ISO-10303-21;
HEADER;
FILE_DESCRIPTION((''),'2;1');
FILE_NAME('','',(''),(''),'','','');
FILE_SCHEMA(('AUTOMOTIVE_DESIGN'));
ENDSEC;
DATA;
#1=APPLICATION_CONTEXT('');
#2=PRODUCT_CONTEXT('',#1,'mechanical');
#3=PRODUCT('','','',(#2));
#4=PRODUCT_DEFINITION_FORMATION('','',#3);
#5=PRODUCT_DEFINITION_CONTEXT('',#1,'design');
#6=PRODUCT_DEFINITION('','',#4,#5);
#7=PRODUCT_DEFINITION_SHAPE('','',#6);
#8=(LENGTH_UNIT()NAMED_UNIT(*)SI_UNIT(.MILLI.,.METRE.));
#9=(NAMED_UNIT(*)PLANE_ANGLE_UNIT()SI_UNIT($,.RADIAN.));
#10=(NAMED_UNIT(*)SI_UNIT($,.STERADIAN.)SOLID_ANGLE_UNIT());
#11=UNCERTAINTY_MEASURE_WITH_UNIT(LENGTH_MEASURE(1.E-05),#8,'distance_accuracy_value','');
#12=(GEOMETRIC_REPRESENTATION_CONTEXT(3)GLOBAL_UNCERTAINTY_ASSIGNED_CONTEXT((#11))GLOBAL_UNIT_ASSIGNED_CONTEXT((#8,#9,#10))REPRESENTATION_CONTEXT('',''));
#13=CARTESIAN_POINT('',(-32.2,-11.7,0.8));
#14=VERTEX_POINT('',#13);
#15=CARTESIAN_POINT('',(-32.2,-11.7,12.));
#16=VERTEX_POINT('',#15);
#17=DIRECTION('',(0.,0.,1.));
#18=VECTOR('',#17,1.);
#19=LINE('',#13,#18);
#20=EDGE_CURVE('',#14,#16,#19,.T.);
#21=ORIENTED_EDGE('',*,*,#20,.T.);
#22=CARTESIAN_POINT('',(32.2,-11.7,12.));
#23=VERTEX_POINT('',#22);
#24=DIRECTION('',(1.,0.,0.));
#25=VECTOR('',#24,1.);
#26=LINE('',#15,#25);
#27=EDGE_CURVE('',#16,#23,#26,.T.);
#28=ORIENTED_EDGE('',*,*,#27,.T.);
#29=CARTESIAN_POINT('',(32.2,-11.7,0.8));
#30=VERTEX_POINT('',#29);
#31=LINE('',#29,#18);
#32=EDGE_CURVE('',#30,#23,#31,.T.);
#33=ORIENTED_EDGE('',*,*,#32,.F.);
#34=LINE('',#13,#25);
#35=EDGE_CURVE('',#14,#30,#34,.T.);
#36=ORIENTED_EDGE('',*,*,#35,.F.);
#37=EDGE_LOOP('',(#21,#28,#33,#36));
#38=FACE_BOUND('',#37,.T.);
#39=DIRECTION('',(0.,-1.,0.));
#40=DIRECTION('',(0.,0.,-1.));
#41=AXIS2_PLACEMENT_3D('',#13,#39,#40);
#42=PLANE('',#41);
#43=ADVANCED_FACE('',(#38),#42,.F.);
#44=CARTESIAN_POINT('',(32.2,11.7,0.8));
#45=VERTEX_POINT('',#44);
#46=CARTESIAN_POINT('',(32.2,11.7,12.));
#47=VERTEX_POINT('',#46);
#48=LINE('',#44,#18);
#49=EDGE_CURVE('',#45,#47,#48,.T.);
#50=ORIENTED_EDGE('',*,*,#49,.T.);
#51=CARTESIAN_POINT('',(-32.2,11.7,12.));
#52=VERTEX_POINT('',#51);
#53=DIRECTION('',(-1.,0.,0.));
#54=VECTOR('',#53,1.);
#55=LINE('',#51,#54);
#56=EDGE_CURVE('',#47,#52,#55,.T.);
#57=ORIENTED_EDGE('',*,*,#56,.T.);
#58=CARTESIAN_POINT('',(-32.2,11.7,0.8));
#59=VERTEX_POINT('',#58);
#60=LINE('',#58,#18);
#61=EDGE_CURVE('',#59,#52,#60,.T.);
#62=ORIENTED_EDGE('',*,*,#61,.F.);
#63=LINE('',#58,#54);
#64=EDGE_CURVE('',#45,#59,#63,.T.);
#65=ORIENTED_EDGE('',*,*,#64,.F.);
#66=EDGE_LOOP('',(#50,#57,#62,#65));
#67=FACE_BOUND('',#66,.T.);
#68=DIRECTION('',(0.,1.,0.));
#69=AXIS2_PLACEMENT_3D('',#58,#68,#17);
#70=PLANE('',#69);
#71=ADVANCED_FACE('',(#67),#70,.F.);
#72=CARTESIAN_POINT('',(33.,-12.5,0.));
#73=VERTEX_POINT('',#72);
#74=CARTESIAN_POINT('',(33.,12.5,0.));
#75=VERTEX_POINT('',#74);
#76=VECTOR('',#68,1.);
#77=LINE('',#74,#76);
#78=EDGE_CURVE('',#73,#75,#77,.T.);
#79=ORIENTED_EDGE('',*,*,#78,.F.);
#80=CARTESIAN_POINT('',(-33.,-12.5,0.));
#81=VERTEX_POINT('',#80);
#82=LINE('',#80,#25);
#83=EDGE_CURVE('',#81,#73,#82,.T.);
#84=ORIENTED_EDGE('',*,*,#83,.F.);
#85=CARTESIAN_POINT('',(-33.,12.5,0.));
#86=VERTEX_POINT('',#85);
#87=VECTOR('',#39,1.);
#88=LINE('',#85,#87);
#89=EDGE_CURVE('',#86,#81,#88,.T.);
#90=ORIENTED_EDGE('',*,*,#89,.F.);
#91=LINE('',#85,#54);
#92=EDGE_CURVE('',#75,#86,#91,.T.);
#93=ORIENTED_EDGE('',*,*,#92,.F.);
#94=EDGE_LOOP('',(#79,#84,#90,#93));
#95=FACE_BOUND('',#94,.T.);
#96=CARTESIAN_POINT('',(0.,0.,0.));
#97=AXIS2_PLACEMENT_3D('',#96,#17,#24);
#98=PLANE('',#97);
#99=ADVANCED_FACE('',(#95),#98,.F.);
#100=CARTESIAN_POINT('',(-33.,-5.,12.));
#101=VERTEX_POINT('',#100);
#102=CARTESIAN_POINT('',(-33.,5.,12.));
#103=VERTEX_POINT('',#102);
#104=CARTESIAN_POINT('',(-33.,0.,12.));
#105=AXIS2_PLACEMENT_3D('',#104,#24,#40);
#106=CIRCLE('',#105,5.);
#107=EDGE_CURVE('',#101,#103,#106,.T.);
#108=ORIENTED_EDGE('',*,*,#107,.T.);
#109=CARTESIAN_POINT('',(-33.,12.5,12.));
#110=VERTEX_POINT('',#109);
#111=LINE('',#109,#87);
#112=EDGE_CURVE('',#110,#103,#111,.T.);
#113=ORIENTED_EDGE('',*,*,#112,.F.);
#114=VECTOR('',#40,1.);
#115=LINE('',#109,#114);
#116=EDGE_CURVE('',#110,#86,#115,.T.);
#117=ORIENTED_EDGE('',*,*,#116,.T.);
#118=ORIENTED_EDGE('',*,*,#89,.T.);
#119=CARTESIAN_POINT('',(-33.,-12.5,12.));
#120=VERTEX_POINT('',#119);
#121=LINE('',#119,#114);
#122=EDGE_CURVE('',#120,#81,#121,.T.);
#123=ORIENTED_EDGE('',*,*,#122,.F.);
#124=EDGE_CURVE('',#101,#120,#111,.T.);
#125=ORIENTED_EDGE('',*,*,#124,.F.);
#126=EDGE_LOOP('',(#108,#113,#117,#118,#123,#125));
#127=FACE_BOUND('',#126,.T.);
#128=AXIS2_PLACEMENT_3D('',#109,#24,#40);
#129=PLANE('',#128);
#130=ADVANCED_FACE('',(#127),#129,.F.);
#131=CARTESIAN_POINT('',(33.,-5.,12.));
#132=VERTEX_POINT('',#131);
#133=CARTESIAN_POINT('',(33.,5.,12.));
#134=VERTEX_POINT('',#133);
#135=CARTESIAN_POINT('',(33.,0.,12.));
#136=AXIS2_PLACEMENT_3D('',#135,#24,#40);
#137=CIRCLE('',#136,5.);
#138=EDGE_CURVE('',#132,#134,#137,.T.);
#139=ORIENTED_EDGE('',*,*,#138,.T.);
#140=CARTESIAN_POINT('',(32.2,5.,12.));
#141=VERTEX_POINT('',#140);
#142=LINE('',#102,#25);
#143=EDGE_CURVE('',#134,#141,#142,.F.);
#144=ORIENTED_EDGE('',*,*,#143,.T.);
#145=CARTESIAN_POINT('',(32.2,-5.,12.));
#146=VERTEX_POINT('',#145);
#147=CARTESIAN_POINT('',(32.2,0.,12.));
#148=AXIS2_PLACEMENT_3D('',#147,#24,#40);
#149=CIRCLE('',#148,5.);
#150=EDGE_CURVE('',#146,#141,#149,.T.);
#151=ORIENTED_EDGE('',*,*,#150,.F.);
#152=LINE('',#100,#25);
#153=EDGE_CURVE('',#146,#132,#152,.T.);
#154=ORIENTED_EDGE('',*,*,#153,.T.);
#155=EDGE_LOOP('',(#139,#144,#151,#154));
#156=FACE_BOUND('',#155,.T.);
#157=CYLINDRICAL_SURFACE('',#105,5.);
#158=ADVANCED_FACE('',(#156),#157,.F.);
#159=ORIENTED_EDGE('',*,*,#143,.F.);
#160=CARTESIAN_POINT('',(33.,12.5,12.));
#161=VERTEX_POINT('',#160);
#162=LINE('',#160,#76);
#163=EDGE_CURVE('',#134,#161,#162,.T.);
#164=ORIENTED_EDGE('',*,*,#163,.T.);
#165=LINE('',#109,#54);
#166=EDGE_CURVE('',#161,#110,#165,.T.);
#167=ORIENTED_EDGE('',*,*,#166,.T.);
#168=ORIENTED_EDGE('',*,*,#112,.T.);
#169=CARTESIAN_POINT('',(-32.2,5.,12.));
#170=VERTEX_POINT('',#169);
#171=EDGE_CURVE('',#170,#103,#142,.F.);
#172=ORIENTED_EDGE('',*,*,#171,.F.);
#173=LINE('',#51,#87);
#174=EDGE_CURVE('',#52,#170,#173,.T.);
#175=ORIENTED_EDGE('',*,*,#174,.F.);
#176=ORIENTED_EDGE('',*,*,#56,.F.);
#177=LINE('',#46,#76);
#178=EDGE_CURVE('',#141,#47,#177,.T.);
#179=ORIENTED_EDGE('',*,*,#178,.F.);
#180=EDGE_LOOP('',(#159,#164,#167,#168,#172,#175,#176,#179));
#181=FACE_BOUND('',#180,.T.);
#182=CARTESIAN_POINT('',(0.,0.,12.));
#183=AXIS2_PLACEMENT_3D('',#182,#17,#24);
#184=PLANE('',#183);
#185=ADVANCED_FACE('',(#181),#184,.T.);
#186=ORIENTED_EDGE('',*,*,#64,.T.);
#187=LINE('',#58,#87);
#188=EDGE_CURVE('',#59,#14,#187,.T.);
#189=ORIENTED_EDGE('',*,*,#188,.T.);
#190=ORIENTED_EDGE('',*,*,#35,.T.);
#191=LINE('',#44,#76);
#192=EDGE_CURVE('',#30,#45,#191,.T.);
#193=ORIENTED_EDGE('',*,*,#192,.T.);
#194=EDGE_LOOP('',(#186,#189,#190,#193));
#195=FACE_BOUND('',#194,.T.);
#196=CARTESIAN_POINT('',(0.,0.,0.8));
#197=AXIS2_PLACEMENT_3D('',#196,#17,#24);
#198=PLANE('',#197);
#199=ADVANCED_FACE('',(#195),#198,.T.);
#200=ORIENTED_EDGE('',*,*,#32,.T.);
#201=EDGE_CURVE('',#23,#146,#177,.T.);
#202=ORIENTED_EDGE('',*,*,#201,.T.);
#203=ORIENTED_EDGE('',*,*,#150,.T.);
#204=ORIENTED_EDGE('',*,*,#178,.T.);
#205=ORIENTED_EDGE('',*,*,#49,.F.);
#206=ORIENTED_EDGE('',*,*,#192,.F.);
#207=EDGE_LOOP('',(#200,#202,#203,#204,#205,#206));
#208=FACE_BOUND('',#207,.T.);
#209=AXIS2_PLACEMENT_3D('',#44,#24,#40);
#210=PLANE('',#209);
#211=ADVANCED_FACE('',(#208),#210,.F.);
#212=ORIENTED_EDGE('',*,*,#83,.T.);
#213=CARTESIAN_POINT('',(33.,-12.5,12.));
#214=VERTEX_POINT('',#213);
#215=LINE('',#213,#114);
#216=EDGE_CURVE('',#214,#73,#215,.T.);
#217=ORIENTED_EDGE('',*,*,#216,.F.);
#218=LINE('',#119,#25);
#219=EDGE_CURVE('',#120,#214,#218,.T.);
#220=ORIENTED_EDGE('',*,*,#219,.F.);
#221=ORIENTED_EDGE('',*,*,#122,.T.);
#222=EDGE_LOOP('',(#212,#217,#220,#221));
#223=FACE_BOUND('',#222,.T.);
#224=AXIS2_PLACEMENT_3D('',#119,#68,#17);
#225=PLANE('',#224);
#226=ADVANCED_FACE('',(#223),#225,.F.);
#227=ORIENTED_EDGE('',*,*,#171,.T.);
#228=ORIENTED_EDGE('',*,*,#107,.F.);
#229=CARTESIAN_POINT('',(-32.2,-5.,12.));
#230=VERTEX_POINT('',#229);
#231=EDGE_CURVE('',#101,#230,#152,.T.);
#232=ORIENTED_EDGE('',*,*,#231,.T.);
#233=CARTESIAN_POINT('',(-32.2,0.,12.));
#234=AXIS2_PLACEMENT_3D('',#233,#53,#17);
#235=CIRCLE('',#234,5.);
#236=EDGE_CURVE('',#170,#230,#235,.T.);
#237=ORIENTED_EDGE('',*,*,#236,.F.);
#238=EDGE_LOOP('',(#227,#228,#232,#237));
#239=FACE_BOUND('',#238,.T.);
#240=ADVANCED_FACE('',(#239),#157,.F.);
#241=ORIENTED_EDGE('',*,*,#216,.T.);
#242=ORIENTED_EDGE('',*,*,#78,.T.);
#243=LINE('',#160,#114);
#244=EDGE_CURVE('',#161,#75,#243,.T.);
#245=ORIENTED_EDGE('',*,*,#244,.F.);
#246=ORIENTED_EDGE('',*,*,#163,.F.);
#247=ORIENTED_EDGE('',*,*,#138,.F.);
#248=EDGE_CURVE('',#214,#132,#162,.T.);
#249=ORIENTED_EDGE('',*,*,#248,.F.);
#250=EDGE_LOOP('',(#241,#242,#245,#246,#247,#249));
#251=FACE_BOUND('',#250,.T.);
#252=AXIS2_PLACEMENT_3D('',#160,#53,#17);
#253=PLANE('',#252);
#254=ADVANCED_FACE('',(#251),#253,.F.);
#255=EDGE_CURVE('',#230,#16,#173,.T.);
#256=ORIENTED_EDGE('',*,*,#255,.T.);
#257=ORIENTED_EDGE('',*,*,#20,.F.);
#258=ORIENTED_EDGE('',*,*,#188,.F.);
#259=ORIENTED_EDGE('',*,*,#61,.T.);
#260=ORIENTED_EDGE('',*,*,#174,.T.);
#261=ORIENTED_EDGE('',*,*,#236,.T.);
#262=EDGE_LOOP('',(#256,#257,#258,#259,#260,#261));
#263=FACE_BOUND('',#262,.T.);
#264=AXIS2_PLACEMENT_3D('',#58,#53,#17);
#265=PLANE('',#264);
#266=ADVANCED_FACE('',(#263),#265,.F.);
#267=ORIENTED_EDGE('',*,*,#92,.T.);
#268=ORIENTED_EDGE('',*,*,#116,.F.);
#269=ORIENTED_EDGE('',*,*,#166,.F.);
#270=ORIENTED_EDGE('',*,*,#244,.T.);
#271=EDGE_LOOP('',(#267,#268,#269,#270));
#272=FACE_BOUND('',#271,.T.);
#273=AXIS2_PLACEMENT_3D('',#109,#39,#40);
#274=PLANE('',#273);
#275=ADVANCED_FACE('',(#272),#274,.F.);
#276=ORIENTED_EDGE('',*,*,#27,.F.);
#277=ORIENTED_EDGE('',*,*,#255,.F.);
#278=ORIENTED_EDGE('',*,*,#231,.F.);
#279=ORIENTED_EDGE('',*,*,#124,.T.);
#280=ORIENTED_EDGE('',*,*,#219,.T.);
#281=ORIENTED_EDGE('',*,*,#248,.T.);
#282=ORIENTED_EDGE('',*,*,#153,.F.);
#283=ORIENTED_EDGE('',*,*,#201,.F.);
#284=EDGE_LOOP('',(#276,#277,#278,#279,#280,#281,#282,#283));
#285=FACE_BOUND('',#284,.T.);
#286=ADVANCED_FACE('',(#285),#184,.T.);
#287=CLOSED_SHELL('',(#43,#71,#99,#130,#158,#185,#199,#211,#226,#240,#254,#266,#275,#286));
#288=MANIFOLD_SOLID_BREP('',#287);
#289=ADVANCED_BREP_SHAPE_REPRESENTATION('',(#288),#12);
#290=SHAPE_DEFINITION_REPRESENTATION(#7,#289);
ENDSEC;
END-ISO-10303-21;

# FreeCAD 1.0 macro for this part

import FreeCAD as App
import Part
import Sketcher
from FreeCAD import Vector
Q = App.Units.Quantity

doc = App.newDocument("Part")
body = doc.addObject("PartDesign::Body", "Body")

sketch1 = body.newObject("Sketcher::SketchObject", "Sketch")
sketch1.AttachmentSupport = (doc.getObject("XY_Plane"), [""])
sketch1.MapMode = "FlatFace"
sketch1.addGeometry([
    Part.LineSegment(Vector(-33, 12, 0), Vector(-33, -12, 0)),
    Part.LineSegment(Vector(-33, -12, 0), Vector(33, -12, 0)),
    Part.LineSegment(Vector(33, -12, 0), Vector(33, 12, 0)),
    Part.LineSegment(Vector(33, 12, 0), Vector(-33, 12, 0)),
], False)
sketch1.addConstraint([
    Sketcher.Constraint("Coincident", 0, 2, 1, 1),
    Sketcher.Constraint("Coincident", 1, 2, 2, 1),
    Sketcher.Constraint("Coincident", 2, 2, 3, 1),
    Sketcher.Constraint("Coincident", 3, 2, 0, 1),
    Sketcher.Constraint("Vertical", 0),
    Sketcher.Constraint("Horizontal", 1),
    Sketcher.Constraint("Vertical", 2),
    Sketcher.Constraint("Horizontal", 3),
    Sketcher.Constraint("Symmetric", 0, 2, 2, 2, -1, 1),
    Sketcher.Constraint("DistanceX", 1, 1, 1, 2, Q("66 mm")),
    Sketcher.Constraint("DistanceY", 0, 2, 0, 1, Q("25 mm")),
])
pad1 = body.newObject("PartDesign::Pad", "Pad")
pad1.Profile = sketch1
pad1.Length = 12

sketch2 = body.newObject("Sketcher::SketchObject", "Sketch001")
sketch2.AttachmentSupport = (doc.getObject("XY_Plane"), [""])
sketch2.MapMode = "FlatFace"
sketch2.AttachmentOffset = App.Placement(Vector(0, 0, 12), App.Rotation())
sketch2.addGeometry([
    Part.LineSegment(Vector(-32, 12, 0), Vector(-32, -12, 0)),
    Part.LineSegment(Vector(-32, -12, 0), Vector(32, -12, 0)),
    Part.LineSegment(Vector(32, -12, 0), Vector(32, 12, 0)),
    Part.LineSegment(Vector(32, 12, 0), Vector(-32, 12, 0)),
], False)
sketch2.addConstraint([
    Sketcher.Constraint("Coincident", 0, 2, 1, 1),
    Sketcher.Constraint("Coincident", 1, 2, 2, 1),
    Sketcher.Constraint("Coincident", 2, 2, 3, 1),
    Sketcher.Constraint("Coincident", 3, 2, 0, 1),
    Sketcher.Constraint("Vertical", 0),
    Sketcher.Constraint("Horizontal", 1),
    Sketcher.Constraint("Vertical", 2),
    Sketcher.Constraint("Horizontal", 3),
    Sketcher.Constraint("Symmetric", 0, 2, 2, 2, -1, 1),
    Sketcher.Constraint("DistanceX", 1, 1, 1, 2, Q("64.4 mm")),
    Sketcher.Constraint("DistanceY", 0, 2, 0, 1, Q("23.4 mm")),
])
pocket1 = body.newObject("PartDesign::Pocket", "Pocket")
pocket1.Profile = sketch2
pocket1.Length = 11.2

sketch3 = body.newObject("Sketcher::SketchObject", "Sketch002")
sketch3.AttachmentSupport = (doc.getObject("YZ_Plane"), [""])
sketch3.MapMode = "FlatFace"
sketch3.AttachmentOffset = App.Placement(Vector(0, 0, 33), App.Rotation())
sketch3.addGeometry(Part.Circle(Vector(0, 12, 0), Vector(0, 0, 1), 5), False)
sketch3.addConstraint([
    Sketcher.Constraint("PointOnObject", 0, 3, -2),
    Sketcher.Constraint("Diameter", 0, Q("10 mm")),
    Sketcher.Constraint("DistanceY", -1, 1, 0, 3, Q("12 mm")),
])
pocket2 = body.newObject("PartDesign::Pocket", "Pocket001")
pocket2.Profile = sketch3
pocket2.Type = "ThroughAll"

doc.recompute()
